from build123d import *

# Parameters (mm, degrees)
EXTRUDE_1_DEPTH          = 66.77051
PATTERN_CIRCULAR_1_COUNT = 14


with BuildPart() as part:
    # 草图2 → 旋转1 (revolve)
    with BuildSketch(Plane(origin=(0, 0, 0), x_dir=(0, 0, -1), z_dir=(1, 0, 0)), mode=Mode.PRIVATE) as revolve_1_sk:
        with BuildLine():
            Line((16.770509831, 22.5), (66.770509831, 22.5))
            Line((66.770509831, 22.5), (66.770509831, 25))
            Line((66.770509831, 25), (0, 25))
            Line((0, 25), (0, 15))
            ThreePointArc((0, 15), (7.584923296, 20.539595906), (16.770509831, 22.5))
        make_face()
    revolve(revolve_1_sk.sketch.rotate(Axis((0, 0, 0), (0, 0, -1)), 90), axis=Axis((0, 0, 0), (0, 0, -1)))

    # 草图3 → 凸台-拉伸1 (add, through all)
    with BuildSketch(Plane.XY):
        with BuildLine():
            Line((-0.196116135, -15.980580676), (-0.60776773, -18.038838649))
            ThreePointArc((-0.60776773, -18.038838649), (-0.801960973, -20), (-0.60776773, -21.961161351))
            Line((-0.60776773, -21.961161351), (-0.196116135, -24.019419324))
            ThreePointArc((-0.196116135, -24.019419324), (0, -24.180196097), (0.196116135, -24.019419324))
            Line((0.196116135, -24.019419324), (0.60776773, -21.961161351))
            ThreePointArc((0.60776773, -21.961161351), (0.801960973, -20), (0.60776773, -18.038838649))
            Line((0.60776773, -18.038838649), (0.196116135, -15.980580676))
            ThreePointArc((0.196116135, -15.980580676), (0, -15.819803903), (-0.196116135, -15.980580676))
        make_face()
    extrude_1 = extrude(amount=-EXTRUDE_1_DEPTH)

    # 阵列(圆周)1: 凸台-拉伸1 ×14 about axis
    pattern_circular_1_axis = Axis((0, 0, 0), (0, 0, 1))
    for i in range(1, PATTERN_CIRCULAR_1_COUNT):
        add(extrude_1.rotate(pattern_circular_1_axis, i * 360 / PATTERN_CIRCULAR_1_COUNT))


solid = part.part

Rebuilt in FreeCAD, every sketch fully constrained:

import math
import FreeCAD as App
import Part
import Sketcher

doc = App.newDocument("Part")
body = doc.addObject("PartDesign::Body", "Body")

# Sketch on YZ plane
sketch1 = body.newObject("Sketcher::SketchObject", "Sketch")
sketch1.AttachmentSupport = (doc.getObject("YZ_Plane"), [""])
sketch1.MapMode = "FlatFace"
sketch1.addGeometry([
    Part.LineSegment(App.Vector(22.5, -16.77051, 0), App.Vector(22.5, -66.77051, 0)),  # 0
    Part.LineSegment(App.Vector(22.5, -66.77051, 0), App.Vector(25, -66.77051, 0)),  # 1
    Part.LineSegment(App.Vector(25, -66.77051, 0), App.Vector(25, 0, 0)),  # 2
    Part.LineSegment(App.Vector(25, 0, 0), App.Vector(15, 0, 0)),  # 3
    Part.ArcOfCircle(Part.Circle(App.Vector(0, -16.77051, 0), App.Vector(0, 0, 1), 22.5), math.radians(0), math.radians(48.189685)),  # 4
], False)
sketch1.addConstraint([
    Sketcher.Constraint("Coincident", 0, 2, 1, 1),
    Sketcher.Constraint("Coincident", 1, 2, 2, 1),
    Sketcher.Constraint("Coincident", 2, 2, 3, 1),
    Sketcher.Constraint("Coincident", 3, 2, 4, 2),
    Sketcher.Constraint("Tangent", 4, 1, 0, 1),
    Sketcher.Constraint("Vertical", 0),
    Sketcher.Constraint("Horizontal", 1),
    Sketcher.Constraint("Vertical", 2),
    Sketcher.Constraint("Horizontal", 3),
    Sketcher.Constraint("PointOnObject", 4, 3, -2),
    Sketcher.Constraint("PointOnObject", 2, 2, -1),
    Sketcher.Constraint("Radius", 4, 22.5),
    Sketcher.Constraint("DistanceX", 3, 2, 3, 1, 10.0),
    Sketcher.Constraint("DistanceY", 0, 2, 0, 1, 50.0),
    Sketcher.Constraint("DistanceX", 1, 1, 1, 2, 2.5),
])
revolution = body.newObject("PartDesign::Revolution", "Revolution")
revolution.Profile = sketch1
revolution.ReferenceAxis = (sketch1, ["V_Axis"])
revolution.Angle = 360

# Sketch on XY plane
sketch2 = body.newObject("Sketcher::SketchObject", "Sketch001")
sketch2.AttachmentSupport = (doc.getObject("XY_Plane"), [""])
sketch2.MapMode = "FlatFace"
sketch2.addGeometry([
    Part.LineSegment(App.Vector(-0.196116, -15.980581, 0), App.Vector(-0.607768, -18.038839, 0)),  # 0
    Part.ArcOfCircle(Part.Circle(App.Vector(9.198039, -20, 0), App.Vector(0, 0, 1), 10), math.radians(168.690068), math.radians(191.309932)),  # 1
    Part.LineSegment(App.Vector(-0.607768, -21.961161, 0), App.Vector(-0.196116, -24.019419, 0)),  # 2
    Part.ArcOfCircle(Part.Circle(App.Vector(0, -23.980196, 0), App.Vector(0, 0, 1), 0.2), math.radians(-168.690068), math.radians(-11.309932)),  # 3
    Part.LineSegment(App.Vector(0.196116, -24.019419, 0), App.Vector(0.607768, -21.961161, 0)),  # 4
    Part.ArcOfCircle(Part.Circle(App.Vector(-9.198039, -20, 0), App.Vector(0, 0, 1), 10), math.radians(-11.309932), math.radians(11.309932)),  # 5
    Part.LineSegment(App.Vector(0.607768, -18.038839, 0), App.Vector(0.196116, -15.980581, 0)),  # 6
    Part.ArcOfCircle(Part.Circle(App.Vector(0, -16.019804, 0), App.Vector(0, 0, 1), 0.2), math.radians(11.309932), math.radians(168.690068)),  # 7
], False)
sketch2.addConstraint([
    Sketcher.Constraint("Tangent", 0, 2, 1, 1),
    Sketcher.Constraint("Tangent", 1, 2, 2, 1),
    Sketcher.Constraint("Tangent", 2, 2, 3, 1),
    Sketcher.Constraint("Tangent", 3, 2, 4, 1),
    Sketcher.Constraint("Tangent", 4, 2, 5, 1),
    Sketcher.Constraint("Tangent", 5, 2, 6, 1),
    Sketcher.Constraint("Tangent", 6, 2, 7, 1),
    Sketcher.Constraint("Tangent", 7, 2, 0, 1),
    Sketcher.Constraint("Equal", 1, 5),
    Sketcher.Constraint("Equal", 3, 7),
    Sketcher.Constraint("Symmetric", 1, 3, 5, 3, -2),
    Sketcher.Constraint("PointOnObject", 3, 3, -2),
    Sketcher.Constraint("PointOnObject", 7, 3, -2),
    Sketcher.Constraint("Parallel", 0, 4),
    Sketcher.Constraint("Radius", 1, 10.0),
    Sketcher.Constraint("Radius", 3, 0.2),
    Sketcher.Constraint("DistanceY", 1, 3, -1, 1, 20.0),
    Sketcher.Constraint("Distance", 0, 2.09902),
    Sketcher.Constraint("DistanceX", -1, 1, 1, 3, 9.198039),
])
pad1 = body.newObject("PartDesign::Pad", "Pad")
pad1.Profile = sketch2
pad1.Length = 66.77051
pad1.Reversed = True
doc.recompute()

polarpattern = body.newObject("PartDesign::PolarPattern", "PolarPattern")
polarpattern.Originals = [pad1]
polarpattern.Axis = (doc.getObject("Z_Axis"), [""])
polarpattern.Angle = 360
polarpattern.Occurrences = 14
body.Tip = polarpattern

doc.recompute()
